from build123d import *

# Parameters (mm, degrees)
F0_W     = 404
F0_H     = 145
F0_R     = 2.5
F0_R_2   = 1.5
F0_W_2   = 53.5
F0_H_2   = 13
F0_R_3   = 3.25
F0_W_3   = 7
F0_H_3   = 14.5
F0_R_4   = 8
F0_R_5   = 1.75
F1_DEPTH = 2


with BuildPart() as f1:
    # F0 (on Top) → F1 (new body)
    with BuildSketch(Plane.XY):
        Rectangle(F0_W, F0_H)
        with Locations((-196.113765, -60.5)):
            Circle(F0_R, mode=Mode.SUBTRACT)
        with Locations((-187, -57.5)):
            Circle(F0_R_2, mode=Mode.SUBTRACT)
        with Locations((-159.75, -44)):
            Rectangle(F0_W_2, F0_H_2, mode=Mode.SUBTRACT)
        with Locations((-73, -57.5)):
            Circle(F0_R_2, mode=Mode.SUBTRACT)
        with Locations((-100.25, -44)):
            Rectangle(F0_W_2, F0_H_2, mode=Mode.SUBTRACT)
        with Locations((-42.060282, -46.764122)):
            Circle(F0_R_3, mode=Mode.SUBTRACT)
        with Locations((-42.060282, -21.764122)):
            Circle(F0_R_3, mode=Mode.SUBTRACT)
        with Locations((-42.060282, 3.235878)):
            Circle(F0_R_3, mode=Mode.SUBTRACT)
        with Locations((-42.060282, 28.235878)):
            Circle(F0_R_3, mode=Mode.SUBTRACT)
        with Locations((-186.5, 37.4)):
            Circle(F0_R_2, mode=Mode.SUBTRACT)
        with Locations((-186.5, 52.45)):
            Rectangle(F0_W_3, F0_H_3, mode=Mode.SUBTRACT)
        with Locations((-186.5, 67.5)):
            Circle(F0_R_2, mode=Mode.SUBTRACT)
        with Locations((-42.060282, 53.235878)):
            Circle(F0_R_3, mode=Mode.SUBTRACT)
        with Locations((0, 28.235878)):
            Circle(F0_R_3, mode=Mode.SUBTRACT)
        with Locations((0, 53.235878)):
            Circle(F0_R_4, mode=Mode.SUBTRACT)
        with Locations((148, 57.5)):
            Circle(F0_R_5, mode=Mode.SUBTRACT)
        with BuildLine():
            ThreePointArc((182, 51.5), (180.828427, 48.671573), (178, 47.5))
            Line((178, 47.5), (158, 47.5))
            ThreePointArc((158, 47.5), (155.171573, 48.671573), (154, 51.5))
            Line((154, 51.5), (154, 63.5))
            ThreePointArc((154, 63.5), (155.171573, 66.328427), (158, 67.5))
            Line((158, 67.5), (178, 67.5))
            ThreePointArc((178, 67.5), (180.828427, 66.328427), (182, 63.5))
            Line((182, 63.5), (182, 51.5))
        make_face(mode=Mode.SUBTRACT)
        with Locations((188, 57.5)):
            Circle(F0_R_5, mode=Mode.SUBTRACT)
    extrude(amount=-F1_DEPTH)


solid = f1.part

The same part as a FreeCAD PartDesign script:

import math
import FreeCAD as App
import Part
import Sketcher


def add_polygon(sketch, points):
    """Adds a closed chain of lines whose ends are joined by coincident constraints."""
    first, n = sketch.GeometryCount, len(points)
    for a, b in zip(points, points[1:] + points[:1]):
        sketch.addGeometry(Part.LineSegment(App.Vector(*a, 0), App.Vector(*b, 0)), False)
    for i in range(n):
        sketch.addConstraint(Sketcher.Constraint("Coincident", first + i, 2, first + (i + 1) % n, 1))

doc = App.newDocument("Part")
params = doc.addObject("Spreadsheet::Sheet", "Params")
for row, (alias, value) in enumerate([
    ("sketch1_diameter", "5 mm"),
    ("sketch1_diameter2", "3 mm"),
    ("sketch1_diameter3", "16 mm"),
    ("sketch1_radius", "4 mm"),
    ("sketch1_diameter4", "6.5 mm"),
    ("pad1_length", "2 mm"),
], start=1):
    params.set(f"A{row}", alias)
    params.set(f"B{row}", "=" + value)
    params.setAlias(f"B{row}", alias)

body = doc.addObject("PartDesign::Body", "Body")

# Sketch on XY plane
sketch1 = body.newObject("Sketcher::SketchObject", "Sketch")
sketch1.AttachmentSupport = (doc.getObject("XY_Plane"), [""])
sketch1.MapMode = "FlatFace"
add_polygon(sketch1, [(-202, 72.5), (-202, -72.5), (202, -72.5), (202, 72.5)])  # lines 0-3
sketch1.addGeometry(Part.Circle(App.Vector(-196.113765, -60.5, 0), App.Vector(0, 0, 1), 2.5), False)  # 4
sketch1.addGeometry(Part.Circle(App.Vector(-187, -57.5, 0), App.Vector(0, 0, 1), 1.5), False)  # 5
add_polygon(sketch1, [(-133, -50.5), (-186.5, -50.5), (-186.5, -37.5), (-133, -37.5)])  # lines 6-9
sketch1.addGeometry(Part.Circle(App.Vector(-73, -57.5, 0), App.Vector(0, 0, 1), 1.5), False)  # 10
sketch1.addGeometry(Part.Circle(App.Vector(-42.060282, -46.764122, 0), App.Vector(0, 0, 1), 3.25), False)  # 11
add_polygon(sketch1, [(-73.5, -50.5), (-127, -50.5), (-127, -37.5), (-73.5, -37.5)])  # lines 12-15
sketch1.addGeometry(Part.Circle(App.Vector(-42.060282, -21.764122, 0), App.Vector(0, 0, 1), 3.25), False)  # 16
sketch1.addGeometry(Part.Circle(App.Vector(-42.060282, 3.235878, 0), App.Vector(0, 0, 1), 3.25), False)  # 17
sketch1.addGeometry(Part.Circle(App.Vector(-42.060282, 28.235878, 0), App.Vector(0, 0, 1), 3.25), False)  # 18
sketch1.addGeometry(Part.Circle(App.Vector(-186.5, 37.4, 0), App.Vector(0, 0, 1), 1.5), False)  # 19
add_polygon(sketch1, [(-183, 45.2), (-190, 45.2), (-190, 59.7), (-183, 59.7)])  # lines 20-23
sketch1.addGeometry(Part.Circle(App.Vector(-186.5, 67.5, 0), App.Vector(0, 0, 1), 1.5), False)  # 24
sketch1.addGeometry(Part.Circle(App.Vector(-42.060282, 53.235878, 0), App.Vector(0, 0, 1), 3.25), False)  # 25
sketch1.addGeometry(Part.Circle(App.Vector(0, 28.235878, 0), App.Vector(0, 0, 1), 3.25), False)  # 26
sketch1.addGeometry(Part.Circle(App.Vector(0, 53.235878, 0), App.Vector(0, 0, 1), 8), False)  # 27
sketch1.addGeometry(Part.Circle(App.Vector(148, 57.5, 0), App.Vector(0, 0, 1), 1.75), False)  # 28
sketch1.addGeometry(Part.LineSegment(App.Vector(182, 63.5, 0), App.Vector(182, 51.5, 0)), False)  # 29
sketch1.addGeometry(Part.ArcOfCircle(Part.Circle(App.Vector(178, 51.5, 0), App.Vector(0, 0, 1), 4), math.radians(-89.999994), math.radians(-0.000006)), False)  # 30
sketch1.addGeometry(Part.LineSegment(App.Vector(178, 47.5, 0), App.Vector(158, 47.5, 0)), False)  # 31
sketch1.addGeometry(Part.ArcOfCircle(Part.Circle(App.Vector(158, 51.5, 0), App.Vector(0, 0, 1), 4), math.radians(-179.999994), math.radians(-90.000006)), False)  # 32
sketch1.addGeometry(Part.LineSegment(App.Vector(154, 51.5, 0), App.Vector(154, 63.5, 0)), False)  # 33
sketch1.addGeometry(Part.ArcOfCircle(Part.Circle(App.Vector(158, 63.5, 0), App.Vector(0, 0, 1), 4), math.radians(90.000006), math.radians(179.999994)), False)  # 34
sketch1.addGeometry(Part.LineSegment(App.Vector(158, 67.5, 0), App.Vector(178, 67.5, 0)), False)  # 35
sketch1.addGeometry(Part.ArcOfCircle(Part.Circle(App.Vector(178, 63.5, 0), App.Vector(0, 0, 1), 4), math.radians(0.000006), math.radians(89.999994)), False)  # 36
sketch1.addGeometry(Part.Circle(App.Vector(188, 57.5, 0), App.Vector(0, 0, 1), 1.75), False)  # 37
sketch1.addConstraint(Sketcher.Constraint("Tangent", 29, 2, 30, 2))
sketch1.addConstraint(Sketcher.Constraint("Tangent", 30, 1, 31, 1))
sketch1.addConstraint(Sketcher.Constraint("Tangent", 31, 2, 32, 2))
sketch1.addConstraint(Sketcher.Constraint("Tangent", 32, 1, 33, 1))
sketch1.addConstraint(Sketcher.Constraint("Tangent", 33, 2, 34, 2))
sketch1.addConstraint(Sketcher.Constraint("Tangent", 34, 1, 35, 1))
sketch1.addConstraint(Sketcher.Constraint("Tangent", 35, 2, 36, 2))
sketch1.addConstraint(Sketcher.Constraint("Tangent", 36, 1, 29, 1))
sketch1.addConstraint(Sketcher.Constraint("Vertical", 0))
sketch1.addConstraint(Sketcher.Constraint("Horizontal", 1))
sketch1.addConstraint(Sketcher.Constraint("Vertical", 2))
sketch1.addConstraint(Sketcher.Constraint("Horizontal", 3))
sketch1.addConstraint(Sketcher.Constraint("Horizontal", 6))
sketch1.addConstraint(Sketcher.Constraint("Vertical", 7))
sketch1.addConstraint(Sketcher.Constraint("Horizontal", 8))
sketch1.addConstraint(Sketcher.Constraint("Vertical", 9))
sketch1.addConstraint(Sketcher.Constraint("Horizontal", 12))
sketch1.addConstraint(Sketcher.Constraint("Vertical", 13))
sketch1.addConstraint(Sketcher.Constraint("Horizontal", 14))
sketch1.addConstraint(Sketcher.Constraint("Vertical", 15))
sketch1.addConstraint(Sketcher.Constraint("Horizontal", 20))
sketch1.addConstraint(Sketcher.Constraint("Vertical", 21))
sketch1.addConstraint(Sketcher.Constraint("Horizontal", 22))
sketch1.addConstraint(Sketcher.Constraint("Vertical", 23))
sketch1.addConstraint(Sketcher.Constraint("Vertical", 29))
sketch1.addConstraint(Sketcher.Constraint("Horizontal", 31))
sketch1.addConstraint(Sketcher.Constraint("Vertical", 33))
sketch1.addConstraint(Sketcher.Constraint("Horizontal", 35))
sketch1.addConstraint(Sketcher.Constraint("Equal", 5, 10))
sketch1.addConstraint(Sketcher.Constraint("Equal", 11, 16))
sketch1.addConstraint(Sketcher.Constraint("Equal", 16, 17))
sketch1.addConstraint(Sketcher.Constraint("Equal", 17, 18))
sketch1.addConstraint(Sketcher.Constraint("Equal", 10, 19))
sketch1.addConstraint(Sketcher.Constraint("Equal", 19, 24))
sketch1.addConstraint(Sketcher.Constraint("Equal", 18, 25))
sketch1.addConstraint(Sketcher.Constraint("Equal", 25, 26))
sketch1.addConstraint(Sketcher.Constraint("Equal", 30, 32))
sketch1.addConstraint(Sketcher.Constraint("Equal", 32, 34))
sketch1.addConstraint(Sketcher.Constraint("Equal", 34, 36))
sketch1.addConstraint(Sketcher.Constraint("Equal", 28, 37))
sketch1.addConstraint(Sketcher.Constraint("Symmetric", 0, 2, 2, 2, -1, 1))
sketch1.addConstraint(Sketcher.Constraint("PointOnObject", 26, 3, -2))
sketch1.addConstraint(Sketcher.Constraint("PointOnObject", 27, 3, -2))
sketch1.addConstraint(Sketcher.Constraint("Horizontal", 5, 3, 10, 3))
sketch1.addConstraint(Sketcher.Constraint("Horizontal", 18, 3, 26, 3))
sketch1.addConstraint(Sketcher.Constraint("Horizontal", 25, 3, 27, 3))
sketch1.addConstraint(Sketcher.Constraint("Horizontal", 28, 3, 37, 3))
sketch1.addConstraint(Sketcher.Constraint("Horizontal", 9, 2, 12, 2))
sketch1.addConstraint(Sketcher.Constraint("Horizontal", 8, 2, 13, 2))
sketch1.addConstraint(Sketcher.Constraint("Horizontal", 24, 3, 34, 1))
sketch1.addConstraint(Sketcher.Constraint("Vertical", 11, 3, 16, 3))
sketch1.addConstraint(Sketcher.Constraint("Vertical", 16, 3, 17, 3))
sketch1.addConstraint(Sketcher.Constraint("Vertical", 17, 3, 18, 3))
sketch1.addConstraint(Sketcher.Constraint("Vertical", 19, 3, 24, 3))
sketch1.addConstraint(Sketcher.Constraint("Vertical", 18, 3, 25, 3))
sketch1.addConstraint(Sketcher.Constraint("Vertical", 24, 3, 6, 2))
sketch1.addConstraint(Sketcher.Constraint("Equal", 8, 12))
sketch1.addConstraint(Sketcher.Constraint("Diameter", 4, 5.0))
sketch1.addConstraint(Sketcher.Constraint("Diameter", 5, 3.0))
sketch1.addConstraint(Sketcher.Constraint("Diameter", 27, 16.0))
sketch1.addConstraint(Sketcher.Constraint("Radius", 30, 4.0))
sketch1.addConstraint(Sketcher.Constraint("Diameter", 11, 6.5))
sketch1.addConstraint(Sketcher.Constraint("Diameter", 28, 3.5))
sketch1.addConstraint(Sketcher.Constraint("DistanceX", 1, 1, 1, 2, 404.0))
sketch1.addConstraint(Sketcher.Constraint("DistanceX", 20, 2, 20, 1, 7.0))
sketch1.addConstraint(Sketcher.Constraint("DistanceX", 31, 2, 31, 1, 20.0))
sketch1.addConstraint(Sketcher.Constraint("DistanceY", 0, 2, 0, 1, 145.0))
sketch1.addConstraint(Sketcher.Constraint("DistanceY", 7, 1, 7, 2, 13.0))
sketch1.addConstraint(Sketcher.Constraint("DistanceY", 29, 2, 29, 1, 12.0))
sketch1.addConstraint(Sketcher.Constraint("DistanceX", 6, 2, 6, 1, 53.5))
sketch1.addConstraint(Sketcher.Constraint("DistanceY", 21, 1, 21, 2, 14.5))
sketch1.addConstraint(Sketcher.Constraint("DistanceX", 5, 3, -1, 1, 187.0))
sketch1.addConstraint(Sketcher.Constraint("DistanceX", 10, 3, -1, 1, 73.0))
sketch1.addConstraint(Sketcher.Constraint("DistanceX", -1, 1, 28, 3, 148.0))
sketch1.addConstraint(Sketcher.Constraint("DistanceX", -1, 1, 30, 3, 178.0))
sketch1.addConstraint(Sketcher.Constraint("DistanceX", -1, 1, 37, 3, 188.0))
sketch1.addConstraint(Sketcher.Constraint("DistanceX", 8, 2, -1, 1, 133.0))
sketch1.addConstraint(Sketcher.Constraint("DistanceX", 12, 2, -1, 1, 127.0))
sketch1.addConstraint(Sketcher.Constraint("DistanceX", 20, 2, -1, 1, 190.0))
sketch1.addConstraint(Sketcher.Constraint("DistanceY", 4, 3, 5, 3, 3.0))
sketch1.addConstraint(Sketcher.Constraint("DistanceY", 11, 3, 16, 3, 25.0))
sketch1.addConstraint(Sketcher.Constraint("DistanceY", 16, 3, 17, 3, 25.0))
sketch1.addConstraint(Sketcher.Constraint("DistanceY", 17, 3, 18, 3, 25.0))
sketch1.addConstraint(Sketcher.Constraint("DistanceY", 5, 3, 24, 3, 125.0))
sketch1.addConstraint(Sketcher.Constraint("DistanceY", 18, 3, 25, 3, 25.0))
sketch1.addConstraint(Sketcher.Constraint("DistanceY", 30, 3, 28, 3, 6.0))
sketch1.addConstraint(Sketcher.Constraint("DistanceY", 0, 2, 4, 3, 12.0))
sketch1.addConstraint(Sketcher.Constraint("DistanceY", 5, 3, 6, 2, 7.0))
sketch1.addConstraint(Sketcher.Constraint("DistanceY", -1, 1, 19, 3, 37.4))
sketch1.addConstraint(Sketcher.Constraint("DistanceY", -1, 1, 20, 2, 45.2))
sketch1.addConstraint(Sketcher.Constraint("DistanceY", -1, 1, 17, 3, 3.235878))
sketch1.addConstraint(Sketcher.Constraint("DistanceX", 5, 3, 11, 3, 144.939718))
sketch1.addConstraint(Sketcher.Constraint("DistanceX", 4, 3, -1, 1, 196.113765))
sketch1.setExpression("Constraints[73]", "Params.sketch1_diameter")
sketch1.setExpression("Constraints[74]", "Params.sketch1_diameter2")
sketch1.setExpression("Constraints[75]", "Params.sketch1_diameter3")
sketch1.setExpression("Constraints[76]", "Params.sketch1_radius")
sketch1.setExpression("Constraints[77]", "Params.sketch1_diameter4")
pad1 = body.newObject("PartDesign::Pad", "Pad")
pad1.Profile = sketch1
pad1.setExpression("Length", "Params.pad1_length")
pad1.Reversed = True

doc.recompute()
